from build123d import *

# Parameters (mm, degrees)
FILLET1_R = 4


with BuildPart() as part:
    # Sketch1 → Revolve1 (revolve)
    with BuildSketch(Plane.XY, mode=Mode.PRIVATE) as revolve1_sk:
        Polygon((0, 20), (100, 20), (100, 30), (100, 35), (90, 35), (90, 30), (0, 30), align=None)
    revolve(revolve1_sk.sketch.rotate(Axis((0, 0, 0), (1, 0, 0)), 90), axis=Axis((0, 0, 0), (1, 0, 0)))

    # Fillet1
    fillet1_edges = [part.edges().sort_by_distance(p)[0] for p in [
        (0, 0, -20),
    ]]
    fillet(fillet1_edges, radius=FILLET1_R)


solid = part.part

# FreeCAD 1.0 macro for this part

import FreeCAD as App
import Part
import Sketcher

V = App.Vector
Q = App.Units.Quantity


def edges_at(feature, points):
    """Names of the edges that pass closest to the given points."""
    edges = feature.Shape.Edges
    near = lambda p: min(range(len(edges)), key=lambda i: edges[i].distToShape(Part.Vertex(*p))[0])
    return sorted({f"Edge{near(p) + 1}" for p in points})


def add_polygon(sketch, points):
    """Adds a closed chain of lines whose ends are joined by coincident constraints."""
    first, n = sketch.GeometryCount, len(points)
    for a, b in zip(points, points[1:] + points[:1]):
        sketch.addGeometry(Part.LineSegment(App.Vector(*a, 0), App.Vector(*b, 0)), False)
    for i in range(n):
        sketch.addConstraint(Sketcher.Constraint("Coincident", first + i, 2, first + (i + 1) % n, 1))

doc = App.newDocument("Part")
params = doc.addObject("Spreadsheet::Sheet", "Params")
for row, (alias, value) in enumerate([
    ("sketch1_width", "100 mm"),
    ("sketch1_width2", "10 mm"),
    ("sketch1_height", "15 mm"),
    ("revolution_angle", "360 deg"),
    ("fillet_radius", "4 mm"),
], start=1):
    params.set(f"A{row}", alias)
    params.set(f"B{row}", "=" + value)
    params.setAlias(f"B{row}", alias)

body = doc.addObject("PartDesign::Body", "Body")

# Sketch on XY plane
sketch1 = body.newObject("Sketcher::SketchObject", "Sketch")
sketch1.AttachmentSupport = (doc.getObject("XY_Plane"), [""])
sketch1.MapMode = "FlatFace"
add_polygon(sketch1, [(0, 20), (100, 20), (100, 35), (90, 35), (90, 30), (0, 30)])  # lines 0-5
sketch1.addConstraint([
    Sketcher.Constraint("Horizontal", 0),
    Sketcher.Constraint("Vertical", 1),
    Sketcher.Constraint("Horizontal", 2),
    Sketcher.Constraint("Vertical", 3),
    Sketcher.Constraint("Horizontal", 4),
    Sketcher.Constraint("Vertical", 5),
    Sketcher.Constraint("PointOnObject", 4, 2, -2),
    Sketcher.Constraint("Equal", 2, 5),
    Sketcher.Constraint("DistanceX", 0, 1, 0, 2, Q("100 mm")),
    Sketcher.Constraint("DistanceX", 2, 2, 2, 1, Q("10 mm")),
    Sketcher.Constraint("DistanceY", 1, 1, 1, 2, Q("15 mm")),
    Sketcher.Constraint("DistanceY", -1, 1, 0, 2, Q("20 mm")),
])
sketch1.setExpression("Constraints[14]", "Params.sketch1_width")
sketch1.setExpression("Constraints[15]", "Params.sketch1_width2")
sketch1.setExpression("Constraints[16]", "Params.sketch1_height")
revolution = body.newObject("PartDesign::Revolution", "Revolution")
revolution.Profile = sketch1
revolution.ReferenceAxis = (sketch1, ["H_Axis"])
revolution.setExpression("Angle", "Params.revolution_angle")
doc.recompute()

fillet = body.newObject("PartDesign::Fillet", "Fillet")
fillet.Base = (revolution, edges_at(revolution, [(0, 0, -20)]))
fillet.setExpression("Radius", "Params.fillet_radius")

doc.recompute()
